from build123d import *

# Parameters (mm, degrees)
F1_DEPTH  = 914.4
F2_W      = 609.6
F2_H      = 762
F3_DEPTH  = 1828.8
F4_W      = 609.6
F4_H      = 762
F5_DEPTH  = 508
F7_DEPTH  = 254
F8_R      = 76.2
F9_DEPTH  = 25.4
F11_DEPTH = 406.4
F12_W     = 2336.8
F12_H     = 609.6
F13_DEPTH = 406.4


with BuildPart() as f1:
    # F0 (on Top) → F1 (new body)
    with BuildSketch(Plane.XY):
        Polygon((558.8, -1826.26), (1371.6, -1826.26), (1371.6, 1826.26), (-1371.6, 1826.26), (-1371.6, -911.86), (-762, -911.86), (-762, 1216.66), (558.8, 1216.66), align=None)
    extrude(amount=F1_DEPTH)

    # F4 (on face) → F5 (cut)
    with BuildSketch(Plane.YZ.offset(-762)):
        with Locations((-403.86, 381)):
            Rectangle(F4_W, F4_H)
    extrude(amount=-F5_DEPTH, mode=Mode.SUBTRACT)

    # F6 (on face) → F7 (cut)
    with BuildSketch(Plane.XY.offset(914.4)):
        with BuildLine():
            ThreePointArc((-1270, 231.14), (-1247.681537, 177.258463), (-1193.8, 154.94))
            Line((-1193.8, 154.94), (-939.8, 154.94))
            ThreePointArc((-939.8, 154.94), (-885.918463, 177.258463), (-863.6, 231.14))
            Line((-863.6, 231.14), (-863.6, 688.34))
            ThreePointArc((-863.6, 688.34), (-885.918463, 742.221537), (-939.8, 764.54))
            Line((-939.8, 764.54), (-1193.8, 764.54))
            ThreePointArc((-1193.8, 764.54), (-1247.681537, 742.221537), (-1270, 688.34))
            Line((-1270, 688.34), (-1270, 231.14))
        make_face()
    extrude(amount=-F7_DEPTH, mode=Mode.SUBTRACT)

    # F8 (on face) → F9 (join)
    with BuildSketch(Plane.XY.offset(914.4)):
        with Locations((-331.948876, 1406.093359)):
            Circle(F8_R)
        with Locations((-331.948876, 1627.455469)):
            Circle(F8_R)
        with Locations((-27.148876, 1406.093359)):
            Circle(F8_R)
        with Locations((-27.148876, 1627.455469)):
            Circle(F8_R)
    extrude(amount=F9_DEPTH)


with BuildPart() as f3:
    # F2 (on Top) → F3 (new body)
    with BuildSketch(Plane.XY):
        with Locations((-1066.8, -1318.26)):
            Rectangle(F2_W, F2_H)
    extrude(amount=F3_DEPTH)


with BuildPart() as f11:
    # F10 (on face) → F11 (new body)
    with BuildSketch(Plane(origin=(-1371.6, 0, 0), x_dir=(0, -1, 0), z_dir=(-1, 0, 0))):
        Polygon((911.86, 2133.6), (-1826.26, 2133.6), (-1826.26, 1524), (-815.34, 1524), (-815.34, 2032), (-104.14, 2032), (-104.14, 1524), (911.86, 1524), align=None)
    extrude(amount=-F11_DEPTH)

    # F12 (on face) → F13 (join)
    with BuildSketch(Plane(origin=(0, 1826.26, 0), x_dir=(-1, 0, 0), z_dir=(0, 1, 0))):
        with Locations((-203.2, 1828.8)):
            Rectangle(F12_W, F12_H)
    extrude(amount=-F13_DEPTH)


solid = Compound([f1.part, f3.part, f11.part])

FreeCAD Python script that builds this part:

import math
import FreeCAD as App
import Part
import Sketcher
Q = App.Units.Quantity

doc = App.newDocument("Part")
body = doc.addObject("PartDesign::Body", "Body")

sketch1 = doc.addObject("Sketcher::SketchObject", "Sketch")
body.addObject(sketch1)
sketch1.AttachmentSupport = (doc.XY_Plane, [""])
sketch1.MapMode = "FlatFace"
sketch1.addGeometry(Part.LineSegment(App.Vector(559, -1826, 0), App.Vector(1372, -1826, 0)), False)
sketch1.addGeometry(Part.LineSegment(App.Vector(1372, -1826, 0), App.Vector(1372, 1826, 0)), False)
sketch1.addGeometry(Part.LineSegment(App.Vector(1372, 1826, 0), App.Vector(-1372, 1826, 0)), False)
sketch1.addGeometry(Part.LineSegment(App.Vector(-1372, 1826, 0), App.Vector(-1372, -912, 0)), False)
sketch1.addGeometry(Part.LineSegment(App.Vector(-1372, -912, 0), App.Vector(-762, -912, 0)), False)
sketch1.addGeometry(Part.LineSegment(App.Vector(-762, -912, 0), App.Vector(-762, 1217, 0)), False)
sketch1.addGeometry(Part.LineSegment(App.Vector(-762, 1217, 0), App.Vector(559, 1217, 0)), False)
sketch1.addGeometry(Part.LineSegment(App.Vector(559, 1217, 0), App.Vector(559, -1826, 0)), False)
sketch1.addConstraint(Sketcher.Constraint("Coincident", 0, 2, 1, 1))
sketch1.addConstraint(Sketcher.Constraint("Coincident", 1, 2, 2, 1))
sketch1.addConstraint(Sketcher.Constraint("Coincident", 2, 2, 3, 1))
sketch1.addConstraint(Sketcher.Constraint("Coincident", 3, 2, 4, 1))
sketch1.addConstraint(Sketcher.Constraint("Coincident", 4, 2, 5, 1))
sketch1.addConstraint(Sketcher.Constraint("Coincident", 5, 2, 6, 1))
sketch1.addConstraint(Sketcher.Constraint("Coincident", 6, 2, 7, 1))
sketch1.addConstraint(Sketcher.Constraint("Coincident", 7, 2, 0, 1))
sketch1.addConstraint(Sketcher.Constraint("Horizontal", 0))
sketch1.addConstraint(Sketcher.Constraint("Vertical", 1))
sketch1.addConstraint(Sketcher.Constraint("Horizontal", 2))
sketch1.addConstraint(Sketcher.Constraint("Vertical", 3))
sketch1.addConstraint(Sketcher.Constraint("Horizontal", 4))
sketch1.addConstraint(Sketcher.Constraint("Vertical", 5))
sketch1.addConstraint(Sketcher.Constraint("Horizontal", 6))
sketch1.addConstraint(Sketcher.Constraint("Vertical", 7))
sketch1.addConstraint(Sketcher.Constraint("Symmetric", 0, 2, 2, 2, -1, 1))
sketch1.addConstraint(Sketcher.Constraint("DistanceX", 0, 1, 0, 2, Q("32 in")))
sketch1.addConstraint(Sketcher.Constraint("DistanceX", 2, 2, 2, 1, Q("108 in")))
sketch1.addConstraint(Sketcher.Constraint("DistanceX", 4, 1, 4, 2, Q("24 in")))
sketch1.addConstraint(Sketcher.Constraint("DistanceY", 1, 1, 1, 2, Q("143.8 in")))
sketch1.addConstraint(Sketcher.Constraint("DistanceY", 3, 2, 3, 1, Q("107.8 in")))
sketch1.addConstraint(Sketcher.Constraint("DistanceY", 5, 1, 5, 2, Q("83.8 in")))
pad1 = doc.addObject("PartDesign::Pad", "Pad")
body.addObject(pad1)
pad1.Profile = sketch1
pad1.Length = Q("36 in")

sketch2 = doc.addObject("Sketcher::SketchObject", "Sketch001")
body.addObject(sketch2)
sketch2.AttachmentSupport = (doc.YZ_Plane, [""])
sketch2.MapMode = "FlatFace"
sketch2.AttachmentOffset = App.Placement(App.Vector(0, 0, -30 * 25.4), App.Rotation())
sketch2.addGeometry(Part.LineSegment(App.Vector(-709, 762, 0), App.Vector(-709, 0, 0)), False)
sketch2.addGeometry(Part.LineSegment(App.Vector(-709, 0, 0), App.Vector(-99, 0, 0)), False)
sketch2.addGeometry(Part.LineSegment(App.Vector(-99, 0, 0), App.Vector(-99, 762, 0)), False)
sketch2.addGeometry(Part.LineSegment(App.Vector(-99, 762, 0), App.Vector(-709, 762, 0)), False)
sketch2.addConstraint(Sketcher.Constraint("Coincident", 0, 2, 1, 1))
sketch2.addConstraint(Sketcher.Constraint("Coincident", 1, 2, 2, 1))
sketch2.addConstraint(Sketcher.Constraint("Coincident", 2, 2, 3, 1))
sketch2.addConstraint(Sketcher.Constraint("Coincident", 3, 2, 0, 1))
sketch2.addConstraint(Sketcher.Constraint("Vertical", 0))
sketch2.addConstraint(Sketcher.Constraint("Horizontal", 1))
sketch2.addConstraint(Sketcher.Constraint("Vertical", 2))
sketch2.addConstraint(Sketcher.Constraint("Horizontal", 3))
sketch2.addConstraint(Sketcher.Constraint("PointOnObject", 0, 2, -1))
sketch2.addConstraint(Sketcher.Constraint("DistanceX", 1, 1, 1, 2, Q("24 in")))
sketch2.addConstraint(Sketcher.Constraint("DistanceY", 0, 2, 0, 1, Q("30 in")))
sketch2.addConstraint(Sketcher.Constraint("DistanceX", 0, 2, -1, 1, Q("27.9 in")))
pocket1 = doc.addObject("PartDesign::Pocket", "Pocket")
body.addObject(pocket1)
pocket1.Profile = sketch2
pocket1.Length = Q("20 in")

sketch3 = doc.addObject("Sketcher::SketchObject", "Sketch002")
body.addObject(sketch3)
sketch3.AttachmentSupport = (doc.XY_Plane, [""])
sketch3.MapMode = "FlatFace"
sketch3.AttachmentOffset = App.Placement(App.Vector(0, 0, 36 * 25.4), App.Rotation())
sketch3.addGeometry(Part.ArcOfCircle(Part.Circle(App.Vector(-1194, 231, 0), App.Vector(0, 0, 1), 76), math.radians(180), math.radians(270)), False)
sketch3.addGeometry(Part.LineSegment(App.Vector(-1194, 155, 0), App.Vector(-940, 155, 0)), False)
sketch3.addGeometry(Part.ArcOfCircle(Part.Circle(App.Vector(-940, 231, 0), App.Vector(0, 0, 1), 76), math.radians(-90), math.radians(0)), False)
sketch3.addGeometry(Part.LineSegment(App.Vector(-864, 231, 0), App.Vector(-864, 688, 0)), False)
sketch3.addGeometry(Part.ArcOfCircle(Part.Circle(App.Vector(-940, 688, 0), App.Vector(0, 0, 1), 76), math.radians(0), math.radians(90)), False)
sketch3.addGeometry(Part.LineSegment(App.Vector(-940, 765, 0), App.Vector(-1194, 765, 0)), False)
sketch3.addGeometry(Part.ArcOfCircle(Part.Circle(App.Vector(-1194, 688, 0), App.Vector(0, 0, 1), 76), math.radians(90), math.radians(180)), False)
sketch3.addGeometry(Part.LineSegment(App.Vector(-1270, 688, 0), App.Vector(-1270, 231, 0)), False)
sketch3.addConstraint(Sketcher.Constraint("Tangent", 0, 2, 1, 1))
sketch3.addConstraint(Sketcher.Constraint("Tangent", 1, 2, 2, 1))
sketch3.addConstraint(Sketcher.Constraint("Tangent", 2, 2, 3, 1))
sketch3.addConstraint(Sketcher.Constraint("Tangent", 3, 2, 4, 1))
sketch3.addConstraint(Sketcher.Constraint("Tangent", 4, 2, 5, 1))
sketch3.addConstraint(Sketcher.Constraint("Tangent", 5, 2, 6, 1))
sketch3.addConstraint(Sketcher.Constraint("Tangent", 6, 2, 7, 1))
sketch3.addConstraint(Sketcher.Constraint("Tangent", 7, 2, 0, 1))
sketch3.addConstraint(Sketcher.Constraint("Horizontal", 1))
sketch3.addConstraint(Sketcher.Constraint("Vertical", 3))
sketch3.addConstraint(Sketcher.Constraint("Horizontal", 5))
sketch3.addConstraint(Sketcher.Constraint("Vertical", 7))
sketch3.addConstraint(Sketcher.Constraint("Equal", 0, 2))
sketch3.addConstraint(Sketcher.Constraint("Equal", 2, 4))
sketch3.addConstraint(Sketcher.Constraint("Equal", 4, 6))
sketch3.addConstraint(Sketcher.Constraint("Radius", 0, Q("3 in")))
sketch3.addConstraint(Sketcher.Constraint("DistanceX", 1, 1, 1, 2, Q("10 in")))
sketch3.addConstraint(Sketcher.Constraint("DistanceY", 3, 1, 3, 2, Q("18 in")))
sketch3.addConstraint(Sketcher.Constraint("DistanceX", 0, 3, -1, 1, Q("47 in")))
sketch3.addConstraint(Sketcher.Constraint("DistanceY", -1, 1, 0, 3, Q("9.1 in")))
pocket2 = doc.addObject("PartDesign::Pocket", "Pocket001")
body.addObject(pocket2)
pocket2.Profile = sketch3
pocket2.Length = Q("10 in")

sketch4 = doc.addObject("Sketcher::SketchObject", "Sketch003")
body.addObject(sketch4)
sketch4.AttachmentSupport = (doc.XY_Plane, [""])
sketch4.MapMode = "FlatFace"
sketch4.AttachmentOffset = App.Placement(App.Vector(0, 0, 36 * 25.4), App.Rotation())
sketch4.addGeometry(Part.Circle(App.Vector(-332, 1406, 0), App.Vector(0, 0, 1), 76), False)
sketch4.addGeometry(Part.Circle(App.Vector(-332, 1627, 0), App.Vector(0, 0, 1), 76), False)
sketch4.addGeometry(Part.Circle(App.Vector(-27, 1406, 0), App.Vector(0, 0, 1), 76), False)
sketch4.addGeometry(Part.Circle(App.Vector(-27, 1627, 0), App.Vector(0, 0, 1), 76), False)
sketch4.addConstraint(Sketcher.Constraint("Equal", 0, 1))
sketch4.addConstraint(Sketcher.Constraint("Equal", 1, 2))
sketch4.addConstraint(Sketcher.Constraint("Equal", 2, 3))
sketch4.addConstraint(Sketcher.Constraint("Horizontal", 0, 3, 2, 3))
sketch4.addConstraint(Sketcher.Constraint("Horizontal", 1, 3, 3, 3))
sketch4.addConstraint(Sketcher.Constraint("Vertical", 0, 3, 1, 3))
sketch4.addConstraint(Sketcher.Constraint("Vertical", 2, 3, 3, 3))
sketch4.addConstraint(Sketcher.Constraint("Diameter", 0, Q("6 in")))
sketch4.addConstraint(Sketcher.Constraint("DistanceX", 0, 3, 2, 3, Q("12 in")))
sketch4.addConstraint(Sketcher.Constraint("DistanceY", -1, 1, 0, 3, 1406.093359))
sketch4.addConstraint(Sketcher.Constraint("DistanceY", -1, 1, 1, 3, 1627.455469))
sketch4.addConstraint(Sketcher.Constraint("DistanceX", 0, 3, -1, 1, 331.948876))
pad2 = doc.addObject("PartDesign::Pad", "Pad001")
body.addObject(pad2)
pad2.Profile = sketch4
pad2.Length = Q("1 in")
body2 = doc.addObject("PartDesign::Body", "Body001")

sketch5 = doc.addObject("Sketcher::SketchObject", "Sketch004")
body2.addObject(sketch5)
sketch5.AttachmentSupport = (doc.getObject("XY_Plane001"), [""])
sketch5.MapMode = "FlatFace"
sketch5.addGeometry(Part.LineSegment(App.Vector(-1372, -937, 0), App.Vector(-1372, -1699, 0)), False)
sketch5.addGeometry(Part.LineSegment(App.Vector(-1372, -1699, 0), App.Vector(-762, -1699, 0)), False)
sketch5.addGeometry(Part.LineSegment(App.Vector(-762, -1699, 0), App.Vector(-762, -937, 0)), False)
sketch5.addGeometry(Part.LineSegment(App.Vector(-762, -937, 0), App.Vector(-1372, -937, 0)), False)
sketch5.addConstraint(Sketcher.Constraint("Coincident", 0, 2, 1, 1))
sketch5.addConstraint(Sketcher.Constraint("Coincident", 1, 2, 2, 1))
sketch5.addConstraint(Sketcher.Constraint("Coincident", 2, 2, 3, 1))
sketch5.addConstraint(Sketcher.Constraint("Coincident", 3, 2, 0, 1))
sketch5.addConstraint(Sketcher.Constraint("Vertical", 0))
sketch5.addConstraint(Sketcher.Constraint("Horizontal", 1))
sketch5.addConstraint(Sketcher.Constraint("Vertical", 2))
sketch5.addConstraint(Sketcher.Constraint("Horizontal", 3))
sketch5.addConstraint(Sketcher.Constraint("DistanceX", 1, 1, 1, 2, Q("24 in")))
sketch5.addConstraint(Sketcher.Constraint("DistanceY", 0, 2, 0, 1, Q("30 in")))
sketch5.addConstraint(Sketcher.Constraint("DistanceX", 0, 2, -1, 1, Q("54 in")))
sketch5.addConstraint(Sketcher.Constraint("DistanceY", 0, 2, -1, 1, Q("66.9 in")))
pad3 = doc.addObject("PartDesign::Pad", "Pad002")
body2.addObject(pad3)
pad3.Profile = sketch5
pad3.Length = Q("72 in")
body3 = doc.addObject("PartDesign::Body", "Body002")

sketch6 = doc.addObject("Sketcher::SketchObject", "Sketch005")
body3.addObject(sketch6)
sketch6.AttachmentSupport = (doc.getObject("YZ_Plane002"), [""])
sketch6.MapMode = "FlatFace"
sketch6.AttachmentOffset = App.Placement(App.Vector(0, 0, -54 * 25.4), App.Rotation())
sketch6.addGeometry(Part.LineSegment(App.Vector(-912, 2134, 0), App.Vector(1826, 2134, 0)), False)
sketch6.addGeometry(Part.LineSegment(App.Vector(1826, 2134, 0), App.Vector(1826, 1524, 0)), False)
sketch6.addGeometry(Part.LineSegment(App.Vector(1826, 1524, 0), App.Vector(815, 1524, 0)), False)
sketch6.addGeometry(Part.LineSegment(App.Vector(815, 1524, 0), App.Vector(815, 2032, 0)), False)
sketch6.addGeometry(Part.LineSegment(App.Vector(815, 2032, 0), App.Vector(104, 2032, 0)), False)
sketch6.addGeometry(Part.LineSegment(App.Vector(104, 2032, 0), App.Vector(104, 1524, 0)), False)
sketch6.addGeometry(Part.LineSegment(App.Vector(104, 1524, 0), App.Vector(-912, 1524, 0)), False)
sketch6.addGeometry(Part.LineSegment(App.Vector(-912, 1524, 0), App.Vector(-912, 2134, 0)), False)
sketch6.addConstraint(Sketcher.Constraint("Coincident", 0, 2, 1, 1))
sketch6.addConstraint(Sketcher.Constraint("Coincident", 1, 2, 2, 1))
sketch6.addConstraint(Sketcher.Constraint("Coincident", 2, 2, 3, 1))
sketch6.addConstraint(Sketcher.Constraint("Coincident", 3, 2, 4, 1))
sketch6.addConstraint(Sketcher.Constraint("Coincident", 4, 2, 5, 1))
sketch6.addConstraint(Sketcher.Constraint("Coincident", 5, 2, 6, 1))
sketch6.addConstraint(Sketcher.Constraint("Coincident", 6, 2, 7, 1))
sketch6.addConstraint(Sketcher.Constraint("Coincident", 7, 2, 0, 1))
sketch6.addConstraint(Sketcher.Constraint("Horizontal", 0))
sketch6.addConstraint(Sketcher.Constraint("Vertical", 1))
sketch6.addConstraint(Sketcher.Constraint("Horizontal", 2))
sketch6.addConstraint(Sketcher.Constraint("Vertical", 3))
sketch6.addConstraint(Sketcher.Constraint("Horizontal", 4))
sketch6.addConstraint(Sketcher.Constraint("Vertical", 5))
sketch6.addConstraint(Sketcher.Constraint("Horizontal", 6))
sketch6.addConstraint(Sketcher.Constraint("Vertical", 7))
sketch6.addConstraint(Sketcher.Constraint("Horizontal", 2, 2, 5, 2))
sketch6.addConstraint(Sketcher.Constraint("DistanceX", 4, 2, 4, 1, Q("28 in")))
sketch6.addConstraint(Sketcher.Constraint("DistanceX", 6, 2, 6, 1, Q("40 in")))
sketch6.addConstraint(Sketcher.Constraint("DistanceY", 1, 2, 1, 1, Q("24 in")))
sketch6.addConstraint(Sketcher.Constraint("DistanceY", 3, 1, 3, 2, Q("20 in")))
sketch6.addConstraint(Sketcher.Constraint("DistanceX", 0, 1, 0, 2, Q("107.8 in")))
sketch6.addConstraint(Sketcher.Constraint("DistanceY", -1, 1, 0, 2, Q("84 in")))
sketch6.addConstraint(Sketcher.Constraint("DistanceX", -1, 1, 0, 2, Q("71.9 in")))
pad4 = doc.addObject("PartDesign::Pad", "Pad003")
body3.addObject(pad4)
pad4.Profile = sketch6
pad4.Length = Q("16 in")

sketch7 = doc.addObject("Sketcher::SketchObject", "Sketch006")
body3.addObject(sketch7)
sketch7.AttachmentSupport = (doc.getObject("XZ_Plane002"), [""])
sketch7.MapMode = "FlatFace"
sketch7.AttachmentOffset = App.Placement(App.Vector(0, 0, -71.9 * 25.4), App.Rotation())
sketch7.addGeometry(Part.LineSegment(App.Vector(1372, 2134, 0), App.Vector(1372, 1524, 0)), False)
sketch7.addGeometry(Part.LineSegment(App.Vector(1372, 1524, 0), App.Vector(-965, 1524, 0)), False)
sketch7.addGeometry(Part.LineSegment(App.Vector(-965, 1524, 0), App.Vector(-965, 2134, 0)), False)
sketch7.addGeometry(Part.LineSegment(App.Vector(-965, 2134, 0), App.Vector(1372, 2134, 0)), False)
sketch7.addConstraint(Sketcher.Constraint("Coincident", 0, 2, 1, 1))
sketch7.addConstraint(Sketcher.Constraint("Coincident", 1, 2, 2, 1))
sketch7.addConstraint(Sketcher.Constraint("Coincident", 2, 2, 3, 1))
sketch7.addConstraint(Sketcher.Constraint("Coincident", 3, 2, 0, 1))
sketch7.addConstraint(Sketcher.Constraint("Vertical", 0))
sketch7.addConstraint(Sketcher.Constraint("Horizontal", 1))
sketch7.addConstraint(Sketcher.Constraint("Vertical", 2))
sketch7.addConstraint(Sketcher.Constraint("Horizontal", 3))
sketch7.addConstraint(Sketcher.Constraint("DistanceX", 1, 2, 1, 1, Q("92 in")))
sketch7.addConstraint(Sketcher.Constraint("DistanceY", 0, 2, 0, 1, Q("24 in")))
sketch7.addConstraint(Sketcher.Constraint("DistanceX", -1, 1, 0, 2, Q("54 in")))
sketch7.addConstraint(Sketcher.Constraint("DistanceY", -1, 1, 0, 2, Q("60 in")))
pad5 = doc.addObject("PartDesign::Pad", "Pad004")
body3.addObject(pad5)
pad5.Profile = sketch7
pad5.Length = Q("16 in")

doc.recompute()
